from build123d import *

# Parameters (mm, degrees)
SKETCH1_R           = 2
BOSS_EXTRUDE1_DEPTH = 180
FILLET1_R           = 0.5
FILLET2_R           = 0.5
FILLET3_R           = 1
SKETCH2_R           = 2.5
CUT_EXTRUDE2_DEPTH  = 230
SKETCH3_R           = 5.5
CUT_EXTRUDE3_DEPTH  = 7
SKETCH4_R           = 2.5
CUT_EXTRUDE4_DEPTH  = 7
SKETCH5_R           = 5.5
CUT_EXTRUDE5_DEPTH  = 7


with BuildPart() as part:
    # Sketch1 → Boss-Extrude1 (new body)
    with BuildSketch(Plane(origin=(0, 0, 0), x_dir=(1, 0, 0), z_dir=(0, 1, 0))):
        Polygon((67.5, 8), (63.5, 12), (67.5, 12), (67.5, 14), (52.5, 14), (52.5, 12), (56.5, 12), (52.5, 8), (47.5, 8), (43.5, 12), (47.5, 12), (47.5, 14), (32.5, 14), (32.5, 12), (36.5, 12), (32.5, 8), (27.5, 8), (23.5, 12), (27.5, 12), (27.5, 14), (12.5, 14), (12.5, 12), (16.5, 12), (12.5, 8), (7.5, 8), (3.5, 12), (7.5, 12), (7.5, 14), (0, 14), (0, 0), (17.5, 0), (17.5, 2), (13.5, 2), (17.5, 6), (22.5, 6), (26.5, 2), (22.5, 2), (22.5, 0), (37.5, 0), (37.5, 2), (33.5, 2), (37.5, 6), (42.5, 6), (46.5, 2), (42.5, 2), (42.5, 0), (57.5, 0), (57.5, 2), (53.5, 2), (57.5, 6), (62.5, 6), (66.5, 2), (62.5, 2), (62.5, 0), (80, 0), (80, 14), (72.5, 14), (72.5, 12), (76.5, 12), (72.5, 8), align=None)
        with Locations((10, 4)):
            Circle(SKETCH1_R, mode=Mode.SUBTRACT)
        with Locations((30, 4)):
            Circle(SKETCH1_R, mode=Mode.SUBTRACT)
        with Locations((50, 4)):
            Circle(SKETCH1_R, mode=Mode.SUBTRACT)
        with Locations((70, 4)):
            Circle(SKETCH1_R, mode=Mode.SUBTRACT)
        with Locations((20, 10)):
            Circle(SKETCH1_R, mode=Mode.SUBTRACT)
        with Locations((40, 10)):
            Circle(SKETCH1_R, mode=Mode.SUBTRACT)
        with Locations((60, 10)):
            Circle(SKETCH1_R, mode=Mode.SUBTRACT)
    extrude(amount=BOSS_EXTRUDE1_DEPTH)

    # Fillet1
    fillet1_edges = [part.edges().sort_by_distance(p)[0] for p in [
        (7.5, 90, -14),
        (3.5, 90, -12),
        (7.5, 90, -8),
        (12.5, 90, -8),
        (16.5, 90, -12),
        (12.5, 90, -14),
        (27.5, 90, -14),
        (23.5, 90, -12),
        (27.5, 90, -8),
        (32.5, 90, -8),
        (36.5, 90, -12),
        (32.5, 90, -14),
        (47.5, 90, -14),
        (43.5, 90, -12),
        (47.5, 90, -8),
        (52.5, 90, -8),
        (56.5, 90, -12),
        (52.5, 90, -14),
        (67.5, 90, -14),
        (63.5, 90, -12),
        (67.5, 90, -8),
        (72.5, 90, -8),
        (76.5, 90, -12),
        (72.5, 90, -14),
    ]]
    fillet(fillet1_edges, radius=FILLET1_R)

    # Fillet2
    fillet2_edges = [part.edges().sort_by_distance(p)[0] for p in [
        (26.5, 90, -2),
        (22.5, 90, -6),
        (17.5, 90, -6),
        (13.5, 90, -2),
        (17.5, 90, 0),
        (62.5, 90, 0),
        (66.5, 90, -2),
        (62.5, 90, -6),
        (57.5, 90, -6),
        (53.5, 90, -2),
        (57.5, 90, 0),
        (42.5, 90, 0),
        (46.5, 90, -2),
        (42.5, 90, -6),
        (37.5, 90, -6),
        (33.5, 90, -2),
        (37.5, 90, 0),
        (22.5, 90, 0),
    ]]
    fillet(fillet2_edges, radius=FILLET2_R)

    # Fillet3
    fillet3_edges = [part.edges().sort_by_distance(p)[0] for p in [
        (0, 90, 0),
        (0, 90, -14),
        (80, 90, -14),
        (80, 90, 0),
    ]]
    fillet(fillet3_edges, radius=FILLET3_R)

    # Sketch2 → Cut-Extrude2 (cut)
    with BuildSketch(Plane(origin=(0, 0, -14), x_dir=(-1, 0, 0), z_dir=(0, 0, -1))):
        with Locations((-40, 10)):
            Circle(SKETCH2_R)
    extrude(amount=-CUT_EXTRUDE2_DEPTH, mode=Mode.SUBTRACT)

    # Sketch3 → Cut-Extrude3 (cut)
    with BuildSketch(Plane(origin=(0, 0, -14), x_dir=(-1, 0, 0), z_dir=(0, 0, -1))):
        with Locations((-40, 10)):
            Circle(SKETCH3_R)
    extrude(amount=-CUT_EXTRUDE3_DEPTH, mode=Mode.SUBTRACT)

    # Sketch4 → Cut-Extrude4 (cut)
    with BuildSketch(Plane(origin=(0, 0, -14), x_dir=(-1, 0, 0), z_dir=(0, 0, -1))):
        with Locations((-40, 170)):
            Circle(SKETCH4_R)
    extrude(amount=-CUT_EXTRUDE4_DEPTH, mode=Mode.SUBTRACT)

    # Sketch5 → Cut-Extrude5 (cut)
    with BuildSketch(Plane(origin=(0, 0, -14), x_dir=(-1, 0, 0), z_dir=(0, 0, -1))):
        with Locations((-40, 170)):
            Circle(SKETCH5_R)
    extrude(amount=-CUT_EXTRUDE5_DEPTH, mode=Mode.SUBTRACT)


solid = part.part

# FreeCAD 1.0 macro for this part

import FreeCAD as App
import Part
import Sketcher
from FreeCAD import Vector


def edges_at(feature, points):
    """Names of the edges that pass closest to the given points."""
    edges = feature.Shape.Edges
    near = lambda p: min(range(len(edges)), key=lambda i: edges[i].distToShape(Part.Vertex(*p))[0])
    return sorted({f"Edge{near(p) + 1}" for p in points})


def add_polygon(sketch, points):
    """Adds a closed chain of lines whose ends are joined by coincident constraints."""
    first, n = sketch.GeometryCount, len(points)
    for a, b in zip(points, points[1:] + points[:1]):
        sketch.addGeometry(Part.LineSegment(App.Vector(*a, 0), App.Vector(*b, 0)), False)
    for i in range(n):
        sketch.addConstraint(Sketcher.Constraint("Coincident", first + i, 2, first + (i + 1) % n, 1))

doc = App.newDocument("Part")
body = doc.addObject("PartDesign::Body", "Body")

# Sketch on XZ plane
sketch1 = doc.addObject("Sketcher::SketchObject", "Sketch")
body.addObject(sketch1)
sketch1.AttachmentSupport = (doc.XZ_Plane, [""])
sketch1.MapMode = "FlatFace"
add_polygon(sketch1, [(67.5, -8), (63.5, -12), (67.5, -12), (67.5, -14), (52.5, -14), (52.5, -12), (56.5, -12), (52.5, -8), (47.5, -8), (43.5, -12), (47.5, -12), (47.5, -14), (32.5, -14), (32.5, -12), (36.5, -12), (32.5, -8), (27.5, -8), (23.5, -12), (27.5, -12), (27.5, -14), (12.5, -14), (12.5, -12), (16.5, -12), (12.5, -8), (7.5, -8), (3.5, -12), (7.5, -12), (7.5, -14), (0, -14), (0, 0), (17.5, 0), (17.5, -2), (13.5, -2), (17.5, -6), (22.5, -6), (26.5, -2), (22.5, -2), (22.5, 0), (37.5, 0), (37.5, -2), (33.5, -2), (37.5, -6), (42.5, -6), (46.5, -2), (42.5, -2), (42.5, 0), (57.5, 0), (57.5, -2), (53.5, -2), (57.5, -6), (62.5, -6), (66.5, -2), (62.5, -2), (62.5, 0), (80, 0), (80, -14), (72.5, -14), (72.5, -12), (76.5, -12), (72.5, -8)])  # lines 0-59
sketch1.addGeometry(Part.Circle(Vector(10, -4, 0), Vector(0, 0, 1), 2), False)  # 60
sketch1.addGeometry(Part.Circle(Vector(30, -4, 0), Vector(0, 0, 1), 2), False)  # 61
sketch1.addGeometry(Part.Circle(Vector(50, -4, 0), Vector(0, 0, 1), 2), False)  # 62
sketch1.addGeometry(Part.Circle(Vector(70, -4, 0), Vector(0, 0, 1), 2), False)  # 63
sketch1.addGeometry(Part.Circle(Vector(20, -10, 0), Vector(0, 0, 1), 2), False)  # 64
sketch1.addGeometry(Part.Circle(Vector(40, -10, 0), Vector(0, 0, 1), 2), False)  # 65
sketch1.addGeometry(Part.Circle(Vector(60, -10, 0), Vector(0, 0, 1), 2), False)  # 66
sketch1.addConstraint(Sketcher.Constraint("Horizontal", 1))
sketch1.addConstraint(Sketcher.Constraint("Vertical", 2))
sketch1.addConstraint(Sketcher.Constraint("Horizontal", 3))
sketch1.addConstraint(Sketcher.Constraint("Vertical", 4))
sketch1.addConstraint(Sketcher.Constraint("Horizontal", 5))
sketch1.addConstraint(Sketcher.Constraint("Horizontal", 7))
sketch1.addConstraint(Sketcher.Constraint("Horizontal", 9))
sketch1.addConstraint(Sketcher.Constraint("Vertical", 10))
sketch1.addConstraint(Sketcher.Constraint("Horizontal", 11))
sketch1.addConstraint(Sketcher.Constraint("Vertical", 12))
sketch1.addConstraint(Sketcher.Constraint("Horizontal", 13))
sketch1.addConstraint(Sketcher.Constraint("Horizontal", 15))
sketch1.addConstraint(Sketcher.Constraint("Horizontal", 17))
sketch1.addConstraint(Sketcher.Constraint("Vertical", 18))
sketch1.addConstraint(Sketcher.Constraint("Horizontal", 19))
sketch1.addConstraint(Sketcher.Constraint("Vertical", 20))
sketch1.addConstraint(Sketcher.Constraint("Horizontal", 21))
sketch1.addConstraint(Sketcher.Constraint("Horizontal", 23))
sketch1.addConstraint(Sketcher.Constraint("Horizontal", 25))
sketch1.addConstraint(Sketcher.Constraint("Vertical", 26))
sketch1.addConstraint(Sketcher.Constraint("Horizontal", 27))
sketch1.addConstraint(Sketcher.Constraint("Vertical", 28))
sketch1.addConstraint(Sketcher.Constraint("Horizontal", 29))
sketch1.addConstraint(Sketcher.Constraint("Vertical", 30))
sketch1.addConstraint(Sketcher.Constraint("Horizontal", 31))
sketch1.addConstraint(Sketcher.Constraint("Horizontal", 33))
sketch1.addConstraint(Sketcher.Constraint("Horizontal", 35))
sketch1.addConstraint(Sketcher.Constraint("Vertical", 36))
sketch1.addConstraint(Sketcher.Constraint("Horizontal", 37))
sketch1.addConstraint(Sketcher.Constraint("Vertical", 38))
sketch1.addConstraint(Sketcher.Constraint("Horizontal", 39))
sketch1.addConstraint(Sketcher.Constraint("Horizontal", 41))
sketch1.addConstraint(Sketcher.Constraint("Horizontal", 43))
sketch1.addConstraint(Sketcher.Constraint("Vertical", 44))
sketch1.addConstraint(Sketcher.Constraint("Horizontal", 45))
sketch1.addConstraint(Sketcher.Constraint("Vertical", 46))
sketch1.addConstraint(Sketcher.Constraint("Horizontal", 47))
sketch1.addConstraint(Sketcher.Constraint("Horizontal", 49))
sketch1.addConstraint(Sketcher.Constraint("Horizontal", 51))
sketch1.addConstraint(Sketcher.Constraint("Vertical", 52))
sketch1.addConstraint(Sketcher.Constraint("Horizontal", 53))
sketch1.addConstraint(Sketcher.Constraint("Vertical", 54))
sketch1.addConstraint(Sketcher.Constraint("Horizontal", 55))
sketch1.addConstraint(Sketcher.Constraint("Vertical", 56))
sketch1.addConstraint(Sketcher.Constraint("Horizontal", 57))
sketch1.addConstraint(Sketcher.Constraint("Horizontal", 59))
sketch1.addConstraint(Sketcher.Constraint("Coincident", 28, 2, -1, 1))
sketch1.addConstraint(Sketcher.Constraint("Equal", 60, 61))
sketch1.addConstraint(Sketcher.Constraint("Equal", 61, 62))
sketch1.addConstraint(Sketcher.Constraint("Equal", 62, 63))
sketch1.addConstraint(Sketcher.Constraint("Equal", 63, 64))
sketch1.addConstraint(Sketcher.Constraint("Equal", 64, 65))
sketch1.addConstraint(Sketcher.Constraint("Equal", 65, 66))
sketch1.addConstraint(Sketcher.Constraint("PointOnObject", 36, 2, -1))
sketch1.addConstraint(Sketcher.Constraint("PointOnObject", 44, 2, -1))
sketch1.addConstraint(Sketcher.Constraint("PointOnObject", 52, 2, -1))
sketch1.addConstraint(Sketcher.Constraint("Perpendicular", 0, 6))
sketch1.addConstraint(Sketcher.Constraint("Perpendicular", 6, 8))
sketch1.addConstraint(Sketcher.Constraint("Perpendicular", 8, 14))
sketch1.addConstraint(Sketcher.Constraint("Perpendicular", 14, 16))
sketch1.addConstraint(Sketcher.Constraint("Perpendicular", 16, 22))
sketch1.addConstraint(Sketcher.Constraint("Perpendicular", 22, 24))
sketch1.addConstraint(Sketcher.Constraint("Perpendicular", 24, 32))
sketch1.addConstraint(Sketcher.Constraint("Perpendicular", 32, 34))
sketch1.addConstraint(Sketcher.Constraint("Perpendicular", 34, 40))
sketch1.addConstraint(Sketcher.Constraint("Perpendicular", 40, 42))
sketch1.addConstraint(Sketcher.Constraint("Perpendicular", 42, 48))
sketch1.addConstraint(Sketcher.Constraint("Perpendicular", 48, 50))
sketch1.addConstraint(Sketcher.Constraint("Perpendicular", 50, 58))
sketch1.addConstraint(Sketcher.Constraint("Horizontal", 60, 3, 61, 3))
sketch1.addConstraint(Sketcher.Constraint("Horizontal", 61, 3, 62, 3))
sketch1.addConstraint(Sketcher.Constraint("Horizontal", 62, 3, 63, 3))
sketch1.addConstraint(Sketcher.Constraint("Horizontal", 64, 3, 65, 3))
sketch1.addConstraint(Sketcher.Constraint("Horizontal", 65, 3, 66, 3))
sketch1.addConstraint(Sketcher.Constraint("Horizontal", 1, 2, 4, 2))
sketch1.addConstraint(Sketcher.Constraint("Horizontal", 5, 2, 8, 2))
sketch1.addConstraint(Sketcher.Constraint("Horizontal", 3, 2, 10, 2))
sketch1.addConstraint(Sketcher.Constraint("Horizontal", 9, 2, 12, 2))
sketch1.addConstraint(Sketcher.Constraint("Horizontal", 7, 2, 14, 2))
sketch1.addConstraint(Sketcher.Constraint("Horizontal", 13, 2, 16, 2))
sketch1.addConstraint(Sketcher.Constraint("Horizontal", 11, 2, 18, 2))
sketch1.addConstraint(Sketcher.Constraint("Horizontal", 17, 2, 20, 2))
sketch1.addConstraint(Sketcher.Constraint("Horizontal", 15, 2, 22, 2))
sketch1.addConstraint(Sketcher.Constraint("Horizontal", 21, 2, 24, 2))
sketch1.addConstraint(Sketcher.Constraint("Horizontal", 19, 2, 26, 2))
sketch1.addConstraint(Sketcher.Constraint("Horizontal", 31, 2, 34, 2))
sketch1.addConstraint(Sketcher.Constraint("Horizontal", 35, 2, 38, 2))
sketch1.addConstraint(Sketcher.Constraint("Horizontal", 33, 2, 40, 2))
sketch1.addConstraint(Sketcher.Constraint("Horizontal", 39, 2, 42, 2))
sketch1.addConstraint(Sketcher.Constraint("Horizontal", 43, 2, 46, 2))
sketch1.addConstraint(Sketcher.Constraint("Horizontal", 41, 2, 48, 2))
sketch1.addConstraint(Sketcher.Constraint("Horizontal", 47, 2, 50, 2))
sketch1.addConstraint(Sketcher.Constraint("Horizontal", 27, 2, 54, 2))
sketch1.addConstraint(Sketcher.Constraint("Horizontal", 25, 2, 56, 2))
sketch1.addConstraint(Sketcher.Constraint("Horizontal", 23, 2, 58, 2))
sketch1.addConstraint(Sketcher.Constraint("Vertical", 4, 2, 6, 2))
sketch1.addConstraint(Sketcher.Constraint("Vertical", 7, 2, 9, 2))
sketch1.addConstraint(Sketcher.Constraint("Vertical", 12, 2, 14, 2))
sketch1.addConstraint(Sketcher.Constraint("Vertical", 15, 2, 17, 2))
sketch1.addConstraint(Sketcher.Constraint("Vertical", 20, 2, 22, 2))
sketch1.addConstraint(Sketcher.Constraint("Vertical", 23, 2, 25, 2))
sketch1.addConstraint(Sketcher.Constraint("Vertical", 30, 2, 32, 2))
sketch1.addConstraint(Sketcher.Constraint("Vertical", 33, 2, 35, 2))
sketch1.addConstraint(Sketcher.Constraint("Vertical", 38, 2, 40, 2))
sketch1.addConstraint(Sketcher.Constraint("Vertical", 41, 2, 43, 2))
sketch1.addConstraint(Sketcher.Constraint("Vertical", 46, 2, 48, 2))
sketch1.addConstraint(Sketcher.Constraint("Vertical", 49, 2, 51, 2))
sketch1.addConstraint(Sketcher.Constraint("Vertical", 56, 2, 58, 2))
sketch1.addConstraint(Sketcher.Constraint("Vertical", 2, 2, 59, 2))
sketch1.addConstraint(Sketcher.Constraint("Equal", 1, 5))
sketch1.addConstraint(Sketcher.Constraint("Equal", 3, 11))
sketch1.addConstraint(Sketcher.Constraint("Equal", 7, 15))
sketch1.addConstraint(Sketcher.Constraint("Equal", 11, 19))
sketch1.addConstraint(Sketcher.Constraint("Equal", 15, 23))
sketch1.addConstraint(Sketcher.Constraint("Equal", 25, 31))
sketch1.addConstraint(Sketcher.Constraint("Equal", 23, 33))
sketch1.addConstraint(Sketcher.Constraint("Equal", 19, 37))
sketch1.addConstraint(Sketcher.Constraint("Equal", 33, 41))
sketch1.addConstraint(Sketcher.Constraint("Equal", 37, 45))
sketch1.addConstraint(Sketcher.Constraint("Equal", 41, 49))
sketch1.addConstraint(Sketcher.Constraint("Equal", 29, 53))
sketch1.addConstraint(Sketcher.Constraint("Equal", 27, 55))
sketch1.addConstraint(Sketcher.Constraint("Equal", 49, 59))
sketch1.addConstraint(Sketcher.Constraint("Equal", 26, 30))
sketch1.addConstraint(Sketcher.Constraint("Diameter", 60, 4.0))
sketch1.addConstraint(Sketcher.Constraint("DistanceX", 1, 1, 1, 2, 4.0))
sketch1.addConstraint(Sketcher.Constraint("DistanceX", 3, 2, 3, 1, 15.0))
sketch1.addConstraint(Sketcher.Constraint("DistanceX", 7, 2, 7, 1, 5.0))
sketch1.addConstraint(Sketcher.Constraint("DistanceY", 2, 2, 2, 1, 2.0))
sketch1.addConstraint(Sketcher.Constraint("DistanceY", 28, 1, 28, 2, 14.0))
sketch1.addConstraint(Sketcher.Constraint("DistanceX", 27, 2, 27, 1, 7.5))
sketch1.addConstraint(Sketcher.Constraint("DistanceX", -1, 1, 60, 3, 10.0))
sketch1.addConstraint(Sketcher.Constraint("DistanceY", 60, 3, -1, 1, 4.0))
sketch1.addConstraint(Sketcher.Constraint("DistanceX", -1, 1, 61, 3, 30.0))
sketch1.addConstraint(Sketcher.Constraint("DistanceX", -1, 1, 62, 3, 50.0))
sketch1.addConstraint(Sketcher.Constraint("DistanceX", -1, 1, 63, 3, 70.0))
sketch1.addConstraint(Sketcher.Constraint("DistanceX", -1, 1, 64, 3, 20.0))
sketch1.addConstraint(Sketcher.Constraint("DistanceY", 64, 3, -1, 1, 10.0))
sketch1.addConstraint(Sketcher.Constraint("DistanceX", -1, 1, 65, 3, 40.0))
sketch1.addConstraint(Sketcher.Constraint("DistanceX", -1, 1, 66, 3, 60.0))
pad1 = doc.addObject("PartDesign::Pad", "Pad")
body.addObject(pad1)
pad1.Profile = sketch1
pad1.Length = 180
pad1.Reversed = True
doc.recompute()

fillet = doc.addObject("PartDesign::Fillet", "Fillet")
body.addObject(fillet)
fillet.Base = (pad1, edges_at(pad1, [
    (7.5, 90, -14),
    (3.5, 90, -12),
    (7.5, 90, -8),
    (12.5, 90, -8),
    (16.5, 90, -12),
    (12.5, 90, -14),
    (27.5, 90, -14),
    (23.5, 90, -12),
    (27.5, 90, -8),
    (32.5, 90, -8),
    (36.5, 90, -12),
    (32.5, 90, -14),
    (47.5, 90, -14),
    (43.5, 90, -12),
    (47.5, 90, -8),
    (52.5, 90, -8),
    (56.5, 90, -12),
    (52.5, 90, -14),
    (67.5, 90, -14),
    (63.5, 90, -12),
    (67.5, 90, -8),
    (72.5, 90, -8),
    (76.5, 90, -12),
    (72.5, 90, -14),
]))
fillet.Radius = 0.5
doc.recompute()

fillet2 = doc.addObject("PartDesign::Fillet", "Fillet001")
body.addObject(fillet2)
fillet2.Base = (fillet, edges_at(fillet, [
    (26.5, 90, -2),
    (22.5, 90, -6),
    (17.5, 90, -6),
    (13.5, 90, -2),
    (17.5, 90, 0),
    (62.5, 90, 0),
    (66.5, 90, -2),
    (62.5, 90, -6),
    (57.5, 90, -6),
    (53.5, 90, -2),
    (57.5, 90, 0),
    (42.5, 90, 0),
    (46.5, 90, -2),
    (42.5, 90, -6),
    (37.5, 90, -6),
    (33.5, 90, -2),
    (37.5, 90, 0),
    (22.5, 90, 0),
]))
fillet2.Radius = 0.5
doc.recompute()

fillet3 = doc.addObject("PartDesign::Fillet", "Fillet002")
body.addObject(fillet3)
fillet3.Base = (fillet2, edges_at(fillet2, [
    (0, 90, 0),
    (0, 90, -14),
    (80, 90, -14),
    (80, 90, 0),
]))
fillet3.Radius = 1

# Sketch on XY plane
sketch2 = doc.addObject("Sketcher::SketchObject", "Sketch001")
body.addObject(sketch2)
sketch2.AttachmentSupport = (doc.XY_Plane, [""])
sketch2.MapMode = "FlatFace"
sketch2.AttachmentOffset = App.Placement(Vector(0, 0, -14), App.Rotation())
sketch2.addGeometry(Part.Circle(Vector(40, 10, 0), Vector(0, 0, 1), 2.5), False)
sketch2.addConstraint(Sketcher.Constraint("Diameter", 0, 5.0))
sketch2.addConstraint(Sketcher.Constraint("DistanceX", -1, 1, 0, 3, 40.0))
sketch2.addConstraint(Sketcher.Constraint("DistanceY", -1, 1, 0, 3, 10.0))
pocket1 = doc.addObject("PartDesign::Pocket", "Pocket")
body.addObject(pocket1)
pocket1.Profile = sketch2
pocket1.Length = 230
pocket1.Reversed = True

# Sketch on XY plane
sketch3 = doc.addObject("Sketcher::SketchObject", "Sketch002")
body.addObject(sketch3)
sketch3.AttachmentSupport = (doc.XY_Plane, [""])
sketch3.MapMode = "FlatFace"
sketch3.AttachmentOffset = App.Placement(Vector(0, 0, -14), App.Rotation())
sketch3.addGeometry(Part.Circle(Vector(40, 10, 0), Vector(0, 0, 1), 6), False)
sketch3.addConstraint(Sketcher.Constraint("Diameter", 0, 11.0))
sketch3.addConstraint(Sketcher.Constraint("DistanceX", -1, 1, 0, 3, 40.0))
sketch3.addConstraint(Sketcher.Constraint("DistanceY", -1, 1, 0, 3, 10.0))
pocket2 = doc.addObject("PartDesign::Pocket", "Pocket001")
body.addObject(pocket2)
pocket2.Profile = sketch3
pocket2.Length = 7
pocket2.Reversed = True

# Sketch on XY plane
sketch4 = doc.addObject("Sketcher::SketchObject", "Sketch003")
body.addObject(sketch4)
sketch4.AttachmentSupport = (doc.XY_Plane, [""])
sketch4.MapMode = "FlatFace"
sketch4.AttachmentOffset = App.Placement(Vector(0, 0, -14), App.Rotation())
sketch4.addGeometry(Part.Circle(Vector(40, 170, 0), Vector(0, 0, 1), 2.5), False)
sketch4.addConstraint(Sketcher.Constraint("Diameter", 0, 5.0))
sketch4.addConstraint(Sketcher.Constraint("DistanceX", -1, 1, 0, 3, 40.0))
sketch4.addConstraint(Sketcher.Constraint("DistanceY", -1, 1, 0, 3, 170.0))
pocket3 = doc.addObject("PartDesign::Pocket", "Pocket002")
body.addObject(pocket3)
pocket3.Profile = sketch4
pocket3.Length = 7
pocket3.Reversed = True

# Sketch on XY plane
sketch5 = doc.addObject("Sketcher::SketchObject", "Sketch004")
body.addObject(sketch5)
sketch5.AttachmentSupport = (doc.XY_Plane, [""])
sketch5.MapMode = "FlatFace"
sketch5.AttachmentOffset = App.Placement(Vector(0, 0, -14), App.Rotation())
sketch5.addGeometry(Part.Circle(Vector(40, 170, 0), Vector(0, 0, 1), 6), False)
sketch5.addConstraint(Sketcher.Constraint("Diameter", 0, 11.0))
sketch5.addConstraint(Sketcher.Constraint("DistanceX", -1, 1, 0, 3, 40.0))
sketch5.addConstraint(Sketcher.Constraint("DistanceY", -1, 1, 0, 3, 170.0))
pocket4 = doc.addObject("PartDesign::Pocket", "Pocket003")
body.addObject(pocket4)
pocket4.Profile = sketch5
pocket4.Length = 7
pocket4.Reversed = True

doc.recompute()
